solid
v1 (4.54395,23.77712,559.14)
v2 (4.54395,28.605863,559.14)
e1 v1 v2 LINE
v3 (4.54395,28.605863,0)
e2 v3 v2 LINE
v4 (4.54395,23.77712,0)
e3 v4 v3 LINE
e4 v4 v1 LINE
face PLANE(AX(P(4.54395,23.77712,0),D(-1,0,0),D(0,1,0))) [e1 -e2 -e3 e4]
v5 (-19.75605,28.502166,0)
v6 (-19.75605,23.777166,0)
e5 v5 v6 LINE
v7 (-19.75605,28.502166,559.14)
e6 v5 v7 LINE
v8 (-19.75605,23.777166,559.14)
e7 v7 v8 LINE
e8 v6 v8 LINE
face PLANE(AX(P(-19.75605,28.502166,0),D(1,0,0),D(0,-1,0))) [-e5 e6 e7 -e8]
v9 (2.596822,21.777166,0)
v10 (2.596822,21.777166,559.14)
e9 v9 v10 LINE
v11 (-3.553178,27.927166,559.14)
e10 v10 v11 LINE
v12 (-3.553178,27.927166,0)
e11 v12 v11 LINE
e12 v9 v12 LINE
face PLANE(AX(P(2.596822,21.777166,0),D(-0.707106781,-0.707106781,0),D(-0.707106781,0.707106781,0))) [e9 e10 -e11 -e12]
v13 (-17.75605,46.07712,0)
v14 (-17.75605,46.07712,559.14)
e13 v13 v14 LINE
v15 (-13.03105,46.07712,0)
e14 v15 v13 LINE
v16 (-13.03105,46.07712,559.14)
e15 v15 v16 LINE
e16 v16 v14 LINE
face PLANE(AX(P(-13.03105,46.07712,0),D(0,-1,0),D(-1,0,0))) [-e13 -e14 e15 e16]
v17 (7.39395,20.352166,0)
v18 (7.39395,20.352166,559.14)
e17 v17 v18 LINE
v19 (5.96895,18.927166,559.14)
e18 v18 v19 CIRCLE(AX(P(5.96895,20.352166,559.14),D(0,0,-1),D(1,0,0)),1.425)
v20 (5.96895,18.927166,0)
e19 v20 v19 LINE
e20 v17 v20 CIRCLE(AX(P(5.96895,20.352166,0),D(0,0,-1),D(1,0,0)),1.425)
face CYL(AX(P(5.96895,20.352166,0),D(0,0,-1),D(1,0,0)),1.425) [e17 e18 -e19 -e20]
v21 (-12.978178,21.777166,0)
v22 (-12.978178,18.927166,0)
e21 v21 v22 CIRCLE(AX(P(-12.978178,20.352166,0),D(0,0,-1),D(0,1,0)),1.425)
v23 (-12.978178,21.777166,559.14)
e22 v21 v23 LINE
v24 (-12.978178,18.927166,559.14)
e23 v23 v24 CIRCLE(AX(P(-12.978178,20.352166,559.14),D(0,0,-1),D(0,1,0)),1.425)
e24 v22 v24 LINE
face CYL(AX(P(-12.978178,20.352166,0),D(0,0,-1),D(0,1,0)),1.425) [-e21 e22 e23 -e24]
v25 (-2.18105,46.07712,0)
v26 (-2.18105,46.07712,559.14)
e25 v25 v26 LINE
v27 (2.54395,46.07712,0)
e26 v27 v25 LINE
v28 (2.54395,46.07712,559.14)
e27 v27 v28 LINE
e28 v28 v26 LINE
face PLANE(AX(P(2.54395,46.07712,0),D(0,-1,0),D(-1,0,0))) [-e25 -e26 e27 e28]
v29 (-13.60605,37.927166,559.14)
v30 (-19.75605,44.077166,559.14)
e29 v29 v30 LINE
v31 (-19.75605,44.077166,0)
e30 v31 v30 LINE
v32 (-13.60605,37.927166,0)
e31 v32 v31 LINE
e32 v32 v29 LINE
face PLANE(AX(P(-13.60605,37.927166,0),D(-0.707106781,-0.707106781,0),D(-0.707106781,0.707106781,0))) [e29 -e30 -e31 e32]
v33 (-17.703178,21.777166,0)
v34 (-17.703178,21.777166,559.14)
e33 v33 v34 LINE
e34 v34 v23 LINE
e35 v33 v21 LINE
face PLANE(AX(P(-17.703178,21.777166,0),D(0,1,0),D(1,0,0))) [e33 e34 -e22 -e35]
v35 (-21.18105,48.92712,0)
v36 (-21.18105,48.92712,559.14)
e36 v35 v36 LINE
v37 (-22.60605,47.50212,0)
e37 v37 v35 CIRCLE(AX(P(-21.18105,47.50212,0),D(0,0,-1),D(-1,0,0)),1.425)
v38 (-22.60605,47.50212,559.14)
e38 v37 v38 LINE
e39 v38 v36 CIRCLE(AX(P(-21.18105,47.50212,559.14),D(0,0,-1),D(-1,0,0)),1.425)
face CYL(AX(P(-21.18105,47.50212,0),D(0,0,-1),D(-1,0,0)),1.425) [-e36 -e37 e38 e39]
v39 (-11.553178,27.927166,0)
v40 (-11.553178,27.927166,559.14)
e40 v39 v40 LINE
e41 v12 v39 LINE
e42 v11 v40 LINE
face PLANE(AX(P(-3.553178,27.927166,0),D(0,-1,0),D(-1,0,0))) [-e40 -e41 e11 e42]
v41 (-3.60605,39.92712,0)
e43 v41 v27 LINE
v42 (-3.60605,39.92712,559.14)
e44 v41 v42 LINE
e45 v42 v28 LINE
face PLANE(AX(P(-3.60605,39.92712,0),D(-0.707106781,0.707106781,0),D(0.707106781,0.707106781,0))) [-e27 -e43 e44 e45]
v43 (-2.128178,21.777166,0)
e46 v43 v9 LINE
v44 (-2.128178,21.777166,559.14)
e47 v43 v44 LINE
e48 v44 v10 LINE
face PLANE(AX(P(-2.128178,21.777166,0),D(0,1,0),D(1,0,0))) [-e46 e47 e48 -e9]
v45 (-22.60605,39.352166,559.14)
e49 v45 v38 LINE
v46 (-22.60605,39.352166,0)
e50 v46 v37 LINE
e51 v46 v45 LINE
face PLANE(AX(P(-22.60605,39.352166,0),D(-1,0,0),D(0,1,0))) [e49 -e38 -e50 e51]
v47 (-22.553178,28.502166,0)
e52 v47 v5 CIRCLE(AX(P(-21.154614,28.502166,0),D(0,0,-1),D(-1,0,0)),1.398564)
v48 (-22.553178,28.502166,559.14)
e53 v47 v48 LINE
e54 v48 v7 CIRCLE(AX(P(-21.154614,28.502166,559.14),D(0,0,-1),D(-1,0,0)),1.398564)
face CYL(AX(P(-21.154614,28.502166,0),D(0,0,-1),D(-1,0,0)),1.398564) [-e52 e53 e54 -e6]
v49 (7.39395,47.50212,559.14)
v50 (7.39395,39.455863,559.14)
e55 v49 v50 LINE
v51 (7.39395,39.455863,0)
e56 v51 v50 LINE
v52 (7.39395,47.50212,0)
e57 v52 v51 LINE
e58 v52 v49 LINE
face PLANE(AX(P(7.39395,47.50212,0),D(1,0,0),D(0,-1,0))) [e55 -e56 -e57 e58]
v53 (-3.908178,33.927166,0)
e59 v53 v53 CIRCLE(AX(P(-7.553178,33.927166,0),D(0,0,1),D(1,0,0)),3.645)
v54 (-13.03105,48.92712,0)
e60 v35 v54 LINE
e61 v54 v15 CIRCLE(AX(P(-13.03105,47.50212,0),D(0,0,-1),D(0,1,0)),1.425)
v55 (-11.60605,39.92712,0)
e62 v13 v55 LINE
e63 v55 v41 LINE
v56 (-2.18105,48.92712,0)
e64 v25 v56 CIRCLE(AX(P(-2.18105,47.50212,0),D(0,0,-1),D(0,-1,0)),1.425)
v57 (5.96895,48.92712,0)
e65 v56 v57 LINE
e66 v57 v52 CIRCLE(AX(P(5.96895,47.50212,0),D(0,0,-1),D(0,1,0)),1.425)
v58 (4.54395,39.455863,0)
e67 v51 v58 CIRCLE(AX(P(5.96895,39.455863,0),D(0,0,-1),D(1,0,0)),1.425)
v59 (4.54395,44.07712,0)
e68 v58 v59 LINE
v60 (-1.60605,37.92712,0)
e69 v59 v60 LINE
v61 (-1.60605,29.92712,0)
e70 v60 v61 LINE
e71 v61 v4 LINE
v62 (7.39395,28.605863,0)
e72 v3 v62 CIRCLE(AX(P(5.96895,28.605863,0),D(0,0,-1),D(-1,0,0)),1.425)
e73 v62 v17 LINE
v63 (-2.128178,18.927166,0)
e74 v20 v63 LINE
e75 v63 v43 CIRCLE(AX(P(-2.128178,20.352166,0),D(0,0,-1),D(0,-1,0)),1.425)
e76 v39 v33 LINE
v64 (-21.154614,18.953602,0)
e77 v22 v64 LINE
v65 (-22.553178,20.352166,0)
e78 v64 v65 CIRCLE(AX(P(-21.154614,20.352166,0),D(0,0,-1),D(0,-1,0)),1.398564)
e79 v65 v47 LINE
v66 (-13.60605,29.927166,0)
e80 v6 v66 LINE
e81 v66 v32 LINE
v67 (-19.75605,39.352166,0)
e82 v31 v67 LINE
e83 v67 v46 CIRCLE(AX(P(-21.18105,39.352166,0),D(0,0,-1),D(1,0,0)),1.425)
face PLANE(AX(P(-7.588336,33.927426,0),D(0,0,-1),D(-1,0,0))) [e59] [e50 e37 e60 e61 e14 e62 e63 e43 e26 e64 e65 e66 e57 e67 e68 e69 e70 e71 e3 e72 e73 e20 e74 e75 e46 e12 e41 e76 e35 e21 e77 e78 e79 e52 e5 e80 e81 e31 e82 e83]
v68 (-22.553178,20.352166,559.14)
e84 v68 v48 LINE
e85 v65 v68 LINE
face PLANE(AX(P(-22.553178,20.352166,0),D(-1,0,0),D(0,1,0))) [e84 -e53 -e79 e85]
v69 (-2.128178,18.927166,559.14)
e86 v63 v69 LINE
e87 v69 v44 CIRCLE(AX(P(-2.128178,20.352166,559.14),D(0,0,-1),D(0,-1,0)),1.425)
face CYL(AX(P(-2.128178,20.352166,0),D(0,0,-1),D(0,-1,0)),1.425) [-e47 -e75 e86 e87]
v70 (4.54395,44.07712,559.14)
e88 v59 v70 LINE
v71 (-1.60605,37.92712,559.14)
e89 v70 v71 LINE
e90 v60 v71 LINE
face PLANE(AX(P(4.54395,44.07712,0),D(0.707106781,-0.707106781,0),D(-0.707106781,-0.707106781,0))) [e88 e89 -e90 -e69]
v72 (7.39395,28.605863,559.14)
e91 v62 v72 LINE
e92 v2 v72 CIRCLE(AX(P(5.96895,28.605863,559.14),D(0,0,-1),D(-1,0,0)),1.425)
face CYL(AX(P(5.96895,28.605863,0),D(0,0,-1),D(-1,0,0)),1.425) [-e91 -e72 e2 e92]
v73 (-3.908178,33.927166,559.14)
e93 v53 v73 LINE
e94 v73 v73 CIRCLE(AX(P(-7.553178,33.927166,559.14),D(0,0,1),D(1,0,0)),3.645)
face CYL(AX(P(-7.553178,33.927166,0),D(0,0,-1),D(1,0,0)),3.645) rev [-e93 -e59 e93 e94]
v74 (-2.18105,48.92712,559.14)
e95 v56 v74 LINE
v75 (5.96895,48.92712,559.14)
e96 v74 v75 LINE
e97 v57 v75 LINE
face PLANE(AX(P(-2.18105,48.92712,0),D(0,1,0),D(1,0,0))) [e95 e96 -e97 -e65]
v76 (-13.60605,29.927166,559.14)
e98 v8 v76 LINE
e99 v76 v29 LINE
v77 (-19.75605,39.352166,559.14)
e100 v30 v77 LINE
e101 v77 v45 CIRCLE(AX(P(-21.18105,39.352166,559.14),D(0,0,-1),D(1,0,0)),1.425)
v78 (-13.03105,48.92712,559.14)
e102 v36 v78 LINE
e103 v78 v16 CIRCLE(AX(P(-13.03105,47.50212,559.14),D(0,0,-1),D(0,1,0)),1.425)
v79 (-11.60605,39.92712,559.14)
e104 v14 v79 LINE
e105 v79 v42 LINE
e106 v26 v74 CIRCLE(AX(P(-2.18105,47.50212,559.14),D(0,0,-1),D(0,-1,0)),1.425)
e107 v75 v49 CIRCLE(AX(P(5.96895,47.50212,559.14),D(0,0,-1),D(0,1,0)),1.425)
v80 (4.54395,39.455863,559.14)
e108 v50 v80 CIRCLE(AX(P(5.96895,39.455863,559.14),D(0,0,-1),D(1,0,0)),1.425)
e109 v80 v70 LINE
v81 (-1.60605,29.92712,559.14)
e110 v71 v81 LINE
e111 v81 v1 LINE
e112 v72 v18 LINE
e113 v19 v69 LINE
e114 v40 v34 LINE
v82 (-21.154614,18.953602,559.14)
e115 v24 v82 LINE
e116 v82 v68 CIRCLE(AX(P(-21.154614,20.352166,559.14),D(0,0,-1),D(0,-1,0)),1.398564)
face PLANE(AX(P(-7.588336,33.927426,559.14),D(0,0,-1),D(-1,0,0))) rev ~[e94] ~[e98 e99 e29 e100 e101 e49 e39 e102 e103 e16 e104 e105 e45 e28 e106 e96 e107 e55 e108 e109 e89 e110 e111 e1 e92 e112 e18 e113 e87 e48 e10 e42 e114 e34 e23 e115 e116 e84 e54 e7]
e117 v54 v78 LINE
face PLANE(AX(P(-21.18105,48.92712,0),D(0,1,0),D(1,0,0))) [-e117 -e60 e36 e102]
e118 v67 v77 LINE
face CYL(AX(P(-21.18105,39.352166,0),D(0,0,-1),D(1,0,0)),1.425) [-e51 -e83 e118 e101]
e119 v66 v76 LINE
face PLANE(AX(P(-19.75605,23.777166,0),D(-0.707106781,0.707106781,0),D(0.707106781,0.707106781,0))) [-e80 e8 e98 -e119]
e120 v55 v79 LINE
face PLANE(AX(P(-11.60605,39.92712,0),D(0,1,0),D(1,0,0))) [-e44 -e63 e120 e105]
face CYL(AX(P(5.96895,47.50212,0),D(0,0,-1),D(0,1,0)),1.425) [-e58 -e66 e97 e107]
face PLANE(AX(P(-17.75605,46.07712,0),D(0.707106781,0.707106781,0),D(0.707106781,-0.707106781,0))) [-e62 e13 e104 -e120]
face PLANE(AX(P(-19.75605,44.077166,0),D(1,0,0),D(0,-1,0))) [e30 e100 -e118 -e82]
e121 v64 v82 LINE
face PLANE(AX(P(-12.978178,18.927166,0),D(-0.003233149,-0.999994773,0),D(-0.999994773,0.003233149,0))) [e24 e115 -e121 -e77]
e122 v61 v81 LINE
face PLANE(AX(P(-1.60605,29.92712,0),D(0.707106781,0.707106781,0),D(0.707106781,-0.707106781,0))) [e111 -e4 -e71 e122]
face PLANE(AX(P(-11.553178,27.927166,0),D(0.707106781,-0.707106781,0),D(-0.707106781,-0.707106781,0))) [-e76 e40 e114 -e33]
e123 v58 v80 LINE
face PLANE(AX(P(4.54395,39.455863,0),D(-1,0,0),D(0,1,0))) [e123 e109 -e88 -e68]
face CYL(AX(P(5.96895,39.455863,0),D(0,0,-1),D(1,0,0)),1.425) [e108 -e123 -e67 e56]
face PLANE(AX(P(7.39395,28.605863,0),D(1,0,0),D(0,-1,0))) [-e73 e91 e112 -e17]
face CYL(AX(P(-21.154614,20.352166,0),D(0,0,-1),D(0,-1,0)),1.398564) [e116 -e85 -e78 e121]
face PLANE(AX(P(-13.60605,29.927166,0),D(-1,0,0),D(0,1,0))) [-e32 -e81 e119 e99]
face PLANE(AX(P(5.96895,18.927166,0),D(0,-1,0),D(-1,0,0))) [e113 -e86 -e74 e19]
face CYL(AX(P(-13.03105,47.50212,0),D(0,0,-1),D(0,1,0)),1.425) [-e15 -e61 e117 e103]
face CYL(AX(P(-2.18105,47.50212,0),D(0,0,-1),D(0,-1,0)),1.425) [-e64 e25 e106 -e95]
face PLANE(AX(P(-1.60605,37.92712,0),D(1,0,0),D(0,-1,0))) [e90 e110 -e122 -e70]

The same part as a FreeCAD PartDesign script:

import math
import FreeCAD as App
import Part
import Sketcher
from FreeCAD import Vector

doc = App.newDocument("Part")
params = doc.addObject("Spreadsheet::Sheet", "Params")
for row, (alias, value) in enumerate([
    ("sketch1_diameter", "7.29 mm"),
    ("sketch1_width", "8 mm"),
    ("pad1_length", "559.14 mm"),
], start=1):
    params.set(f"A{row}", alias)
    params.set(f"B{row}", "=" + value)
    params.setAlias(f"B{row}", alias)

body = doc.addObject("PartDesign::Body", "Body")

# Sketch on XY plane
sketch1 = doc.addObject("Sketcher::SketchObject", "Sketch")
body.addObject(sketch1)
sketch1.AttachmentSupport = (doc.XY_Plane, [""])
sketch1.MapMode = "FlatFace"
sketch1.addGeometry(Part.LineSegment(Vector(2.6, 21.8, 0), Vector(-2.1, 21.8, 0)), False)
sketch1.addGeometry(Part.ArcOfCircle(Part.Circle(Vector(-2.1, 20.4, 0), Vector(0, 0, 1), 1.4), math.radians(90), math.radians(270)), False)
sketch1.addGeometry(Part.LineSegment(Vector(-2.1, 18.9, 0), Vector(6, 18.9, 0)), False)
sketch1.addGeometry(Part.ArcOfCircle(Part.Circle(Vector(6, 20.4, 0), Vector(0, 0, 1), 1.4), math.radians(-90), math.radians(0)), False)
sketch1.addGeometry(Part.LineSegment(Vector(7.4, 20.4, 0), Vector(7.4, 28.6, 0)), False)
sketch1.addGeometry(Part.ArcOfCircle(Part.Circle(Vector(6, 28.6, 0), Vector(0, 0, 1), 1.4), math.radians(0), math.radians(180)), False)
sketch1.addGeometry(Part.LineSegment(Vector(4.5, 28.6, 0), Vector(4.5, 23.8, 0)), False)
sketch1.addGeometry(Part.LineSegment(Vector(4.5, 23.8, 0), Vector(-1.6, 29.9, 0)), False)
sketch1.addGeometry(Part.LineSegment(Vector(-1.6, 29.9, 0), Vector(-1.6, 37.9, 0)), False)
sketch1.addGeometry(Part.LineSegment(Vector(-1.6, 37.9, 0), Vector(4.5, 44.1, 0)), False)
sketch1.addGeometry(Part.LineSegment(Vector(4.5, 44.1, 0), Vector(4.5, 39.5, 0)), False)
sketch1.addGeometry(Part.ArcOfCircle(Part.Circle(Vector(6, 39.5, 0), Vector(0, 0, 1), 1.4), math.radians(180), math.radians(360)), False)
sketch1.addGeometry(Part.LineSegment(Vector(7.4, 39.5, 0), Vector(7.4, 47.5, 0)), False)
sketch1.addGeometry(Part.ArcOfCircle(Part.Circle(Vector(6, 47.5, 0), Vector(0, 0, 1), 1.4), math.radians(0), math.radians(90)), False)
sketch1.addGeometry(Part.LineSegment(Vector(6, 48.9, 0), Vector(-2.2, 48.9, 0)), False)
sketch1.addGeometry(Part.ArcOfCircle(Part.Circle(Vector(-2.2, 47.5, 0), Vector(0, 0, 1), 1.4), math.radians(90), math.radians(270)), False)
sketch1.addGeometry(Part.LineSegment(Vector(-2.2, 46.1, 0), Vector(2.5, 46.1, 0)), False)
sketch1.addGeometry(Part.LineSegment(Vector(2.5, 46.1, 0), Vector(-3.6, 39.9, 0)), False)
sketch1.addGeometry(Part.LineSegment(Vector(-3.6, 39.9, 0), Vector(-11.6, 39.9, 0)), False)
sketch1.addGeometry(Part.LineSegment(Vector(-11.6, 39.9, 0), Vector(-17.8, 46.1, 0)), False)
sketch1.addGeometry(Part.LineSegment(Vector(-17.8, 46.1, 0), Vector(-13, 46.1, 0)), False)
sketch1.addGeometry(Part.ArcOfCircle(Part.Circle(Vector(-13, 47.5, 0), Vector(0, 0, 1), 1.4), math.radians(-90), math.radians(90)), False)
sketch1.addGeometry(Part.LineSegment(Vector(-13, 48.9, 0), Vector(-21.2, 48.9, 0)), False)
sketch1.addGeometry(Part.ArcOfCircle(Part.Circle(Vector(-21.2, 47.5, 0), Vector(0, 0, 1), 1.4), math.radians(90), math.radians(180)), False)
sketch1.addGeometry(Part.LineSegment(Vector(-22.6, 47.5, 0), Vector(-22.6, 39.4, 0)), False)
sketch1.addGeometry(Part.ArcOfCircle(Part.Circle(Vector(-21.2, 39.4, 0), Vector(0, 0, 1), 1.4), math.radians(180), math.radians(360)), False)
sketch1.addGeometry(Part.LineSegment(Vector(-19.8, 39.4, 0), Vector(-19.8, 44.1, 0)), False)
sketch1.addGeometry(Part.LineSegment(Vector(-19.8, 44.1, 0), Vector(-13.6, 37.9, 0)), False)
sketch1.addGeometry(Part.LineSegment(Vector(-13.6, 37.9, 0), Vector(-13.6, 29.9, 0)), False)
sketch1.addGeometry(Part.LineSegment(Vector(-13.6, 29.9, 0), Vector(-19.8, 23.8, 0)), False)
sketch1.addGeometry(Part.LineSegment(Vector(-19.8, 23.8, 0), Vector(-19.8, 28.5, 0)), False)
sketch1.addGeometry(Part.ArcOfCircle(Part.Circle(Vector(-21.2, 28.5, 0), Vector(0, 0, 1), 1.4), math.radians(0), math.radians(180)), False)
sketch1.addGeometry(Part.LineSegment(Vector(-22.6, 28.5, 0), Vector(-22.6, 20.4, 0)), False)
sketch1.addGeometry(Part.ArcOfCircle(Part.Circle(Vector(-21.2, 20.4, 0), Vector(0, 0, 1), 1.4), math.radians(-180), math.radians(-90)), False)
sketch1.addGeometry(Part.LineSegment(Vector(-21.2, 19, 0), Vector(-13, 18.9, 0)), False)
sketch1.addGeometry(Part.ArcOfCircle(Part.Circle(Vector(-13, 20.4, 0), Vector(0, 0, 1), 1.4), math.radians(-90), math.radians(90)), False)
sketch1.addGeometry(Part.LineSegment(Vector(-13, 21.8, 0), Vector(-17.7, 21.8, 0)), False)
sketch1.addGeometry(Part.LineSegment(Vector(-17.7, 21.8, 0), Vector(-11.6, 27.9, 0)), False)
sketch1.addGeometry(Part.LineSegment(Vector(-11.6, 27.9, 0), Vector(-3.6, 27.9, 0)), False)
sketch1.addGeometry(Part.LineSegment(Vector(-3.6, 27.9, 0), Vector(2.6, 21.8, 0)), False)
sketch1.addGeometry(Part.Circle(Vector(-7.6, 33.9, 0), Vector(0, 0, 1), 3.6), False)
sketch1.addConstraint(Sketcher.Constraint("Tangent", 0, 2, 1, 1))
sketch1.addConstraint(Sketcher.Constraint("Tangent", 1, 2, 2, 1))
sketch1.addConstraint(Sketcher.Constraint("Tangent", 2, 2, 3, 1))
sketch1.addConstraint(Sketcher.Constraint("Tangent", 3, 2, 4, 1))
sketch1.addConstraint(Sketcher.Constraint("Tangent", 4, 2, 5, 1))
sketch1.addConstraint(Sketcher.Constraint("Tangent", 5, 2, 6, 1))
sketch1.addConstraint(Sketcher.Constraint("Coincident", 6, 2, 7, 1))
sketch1.addConstraint(Sketcher.Constraint("Coincident", 7, 2, 8, 1))
sketch1.addConstraint(Sketcher.Constraint("Coincident", 8, 2, 9, 1))
sketch1.addConstraint(Sketcher.Constraint("Coincident", 9, 2, 10, 1))
sketch1.addConstraint(Sketcher.Constraint("Tangent", 10, 2, 11, 1))
sketch1.addConstraint(Sketcher.Constraint("Tangent", 11, 2, 12, 1))
sketch1.addConstraint(Sketcher.Constraint("Tangent", 12, 2, 13, 1))
sketch1.addConstraint(Sketcher.Constraint("Tangent", 13, 2, 14, 1))
sketch1.addConstraint(Sketcher.Constraint("Tangent", 14, 2, 15, 1))
sketch1.addConstraint(Sketcher.Constraint("Tangent", 15, 2, 16, 1))
sketch1.addConstraint(Sketcher.Constraint("Coincident", 16, 2, 17, 1))
sketch1.addConstraint(Sketcher.Constraint("Coincident", 17, 2, 18, 1))
sketch1.addConstraint(Sketcher.Constraint("Coincident", 18, 2, 19, 1))
sketch1.addConstraint(Sketcher.Constraint("Coincident", 19, 2, 20, 1))
sketch1.addConstraint(Sketcher.Constraint("Tangent", 20, 2, 21, 1))
sketch1.addConstraint(Sketcher.Constraint("Tangent", 21, 2, 22, 1))
sketch1.addConstraint(Sketcher.Constraint("Tangent", 22, 2, 23, 1))
sketch1.addConstraint(Sketcher.Constraint("Tangent", 23, 2, 24, 1))
sketch1.addConstraint(Sketcher.Constraint("Tangent", 24, 2, 25, 1))
sketch1.addConstraint(Sketcher.Constraint("Tangent", 25, 2, 26, 1))
sketch1.addConstraint(Sketcher.Constraint("Coincident", 26, 2, 27, 1))
sketch1.addConstraint(Sketcher.Constraint("Coincident", 27, 2, 28, 1))
sketch1.addConstraint(Sketcher.Constraint("Coincident", 28, 2, 29, 1))
sketch1.addConstraint(Sketcher.Constraint("Coincident", 29, 2, 30, 1))
sketch1.addConstraint(Sketcher.Constraint("Tangent", 30, 2, 31, 1))
sketch1.addConstraint(Sketcher.Constraint("Tangent", 31, 2, 32, 1))
sketch1.addConstraint(Sketcher.Constraint("Tangent", 32, 2, 33, 1))
sketch1.addConstraint(Sketcher.Constraint("Coincident", 33, 2, 34, 1))
sketch1.addConstraint(Sketcher.Constraint("Coincident", 34, 2, 35, 1))
sketch1.addConstraint(Sketcher.Constraint("Tangent", 35, 2, 36, 1))
sketch1.addConstraint(Sketcher.Constraint("Coincident", 36, 2, 37, 1))
sketch1.addConstraint(Sketcher.Constraint("Coincident", 37, 2, 38, 1))
sketch1.addConstraint(Sketcher.Constraint("Coincident", 38, 2, 39, 1))
sketch1.addConstraint(Sketcher.Constraint("Coincident", 39, 2, 0, 1))
sketch1.addConstraint(Sketcher.Constraint("Horizontal", 0))
sketch1.addConstraint(Sketcher.Constraint("Horizontal", 2))
sketch1.addConstraint(Sketcher.Constraint("Vertical", 4))
sketch1.addConstraint(Sketcher.Constraint("Vertical", 6))
sketch1.addConstraint(Sketcher.Constraint("Vertical", 8))
sketch1.addConstraint(Sketcher.Constraint("Vertical", 10))
sketch1.addConstraint(Sketcher.Constraint("Vertical", 12))
sketch1.addConstraint(Sketcher.Constraint("Horizontal", 14))
sketch1.addConstraint(Sketcher.Constraint("Horizontal", 16))
sketch1.addConstraint(Sketcher.Constraint("Horizontal", 18))
sketch1.addConstraint(Sketcher.Constraint("Horizontal", 20))
sketch1.addConstraint(Sketcher.Constraint("Horizontal", 22))
sketch1.addConstraint(Sketcher.Constraint("Vertical", 24))
sketch1.addConstraint(Sketcher.Constraint("Vertical", 26))
sketch1.addConstraint(Sketcher.Constraint("Vertical", 28))
sketch1.addConstraint(Sketcher.Constraint("Vertical", 30))
sketch1.addConstraint(Sketcher.Constraint("Vertical", 32))
sketch1.addConstraint(Sketcher.Constraint("Horizontal", 36))
sketch1.addConstraint(Sketcher.Constraint("Horizontal", 38))
sketch1.addConstraint(Sketcher.Constraint("Equal", 1, 3))
sketch1.addConstraint(Sketcher.Constraint("Equal", 3, 5))
sketch1.addConstraint(Sketcher.Constraint("Equal", 5, 11))
sketch1.addConstraint(Sketcher.Constraint("Equal", 11, 13))
sketch1.addConstraint(Sketcher.Constraint("Equal", 13, 15))
sketch1.addConstraint(Sketcher.Constraint("Equal", 15, 21))
sketch1.addConstraint(Sketcher.Constraint("Equal", 21, 23))
sketch1.addConstraint(Sketcher.Constraint("Equal", 23, 25))
sketch1.addConstraint(Sketcher.Constraint("Equal", 31, 33))
sketch1.addConstraint(Sketcher.Constraint("Equal", 25, 35))
sketch1.addConstraint(Sketcher.Constraint("Perpendicular", 7, 9))
sketch1.addConstraint(Sketcher.Constraint("Parallel", 9, 17))
sketch1.addConstraint(Sketcher.Constraint("Perpendicular", 17, 19))
sketch1.addConstraint(Sketcher.Constraint("Parallel", 19, 27))
sketch1.addConstraint(Sketcher.Constraint("Perpendicular", 27, 29))
sketch1.addConstraint(Sketcher.Constraint("Parallel", 29, 37))
sketch1.addConstraint(Sketcher.Constraint("Perpendicular", 37, 39))
sketch1.addConstraint(Sketcher.Constraint("Horizontal", 15, 3, 21, 3))
sketch1.addConstraint(Sketcher.Constraint("Horizontal", 3, 3, 33, 3))
sketch1.addConstraint(Sketcher.Constraint("Horizontal", 33, 3, 35, 3))
sketch1.addConstraint(Sketcher.Constraint("Vertical", 5, 3, 11, 3))
sketch1.addConstraint(Sketcher.Constraint("Vertical", 26, 2, 29, 2))
sketch1.addConstraint(Sketcher.Constraint("Vertical", 31, 3, 33, 2))
sketch1.addConstraint(Sketcher.Constraint("Vertical", 35, 3, 34, 2))
sketch1.addConstraint(Sketcher.Constraint("Equal", 0, 16))
sketch1.addConstraint(Sketcher.Constraint("Equal", 16, 20))
sketch1.addConstraint(Sketcher.Constraint("Equal", 14, 22))
sketch1.addConstraint(Sketcher.Constraint("Equal", 20, 36))
sketch1.addConstraint(Sketcher.Constraint("Equal", 18, 38))
sketch1.addConstraint(Sketcher.Constraint("Equal", 38, 8))
sketch1.addConstraint(Sketcher.Constraint("Equal", 36, 26))
sketch1.addConstraint(Sketcher.Constraint("Equal", 8, 28))
sketch1.addConstraint(Sketcher.Constraint("Equal", 26, 30))
sketch1.addConstraint(Sketcher.Constraint("Equal", 22, 32))
sketch1.addConstraint(Sketcher.Constraint("Equal", 7, 9))
sketch1.addConstraint(Sketcher.Constraint("Equal", 9, 17))
sketch1.addConstraint(Sketcher.Constraint("Equal", 19, 27))
sketch1.addConstraint(Sketcher.Constraint("Equal", 29, 37))
sketch1.addConstraint(Sketcher.Constraint("Diameter", 40, 7.29))
sketch1.addConstraint(Sketcher.Constraint("DistanceX", 18, 2, 18, 1, 8.0))
sketch1.addConstraint(Sketcher.Constraint("Radius", 1, 1.425))
sketch1.addConstraint(Sketcher.Constraint("DistanceX", 21, 3, 13, 3, 19.0))
sketch1.addConstraint(Sketcher.Constraint("DistanceX", 8, 2, 11, 2, 9.0))
sketch1.addConstraint(Sketcher.Constraint("DistanceY", 9, 2, 15, 2, 2.0))
sketch1.addConstraint(Sketcher.Constraint("DistanceX", 16, 2, 9, 2, 2.0))
sketch1.addConstraint(Sketcher.Constraint("DistanceY", 40, 3, 27, 2, 4.0))
sketch1.addConstraint(Sketcher.Constraint("DistanceX", 37, 2, 40, 3, 4.0))
sketch1.addConstraint(Sketcher.Constraint("DistanceY", 5, 3, 11, 3, 10.85))
sketch1.addConstraint(Sketcher.Constraint("Radius", 31, 1.398564))
sketch1.addConstraint(Sketcher.Constraint("DistanceX", 32, 2, 34, 2, 9.575))
sketch1.addConstraint(Sketcher.Constraint("DistanceY", -1, 1, 33, 2, 18.953602))
sketch1.addConstraint(Sketcher.Constraint("DistanceY", 4, 1, 4, 2, 8.253697))
sketch1.addConstraint(Sketcher.Constraint("DistanceY", 6, 2, 6, 1, 4.828744))
sketch1.addConstraint(Sketcher.Constraint("DistanceX", 1, 3, -1, 1, 2.128178))
sketch1.setExpression("Constraints[97]", "Params.sketch1_diameter")
sketch1.setExpression("Constraints[98]", "Params.sketch1_width")
pad1 = doc.addObject("PartDesign::Pad", "Pad")
body.addObject(pad1)
pad1.Profile = sketch1
pad1.setExpression("Length", "Params.pad1_length")

doc.recompute()
